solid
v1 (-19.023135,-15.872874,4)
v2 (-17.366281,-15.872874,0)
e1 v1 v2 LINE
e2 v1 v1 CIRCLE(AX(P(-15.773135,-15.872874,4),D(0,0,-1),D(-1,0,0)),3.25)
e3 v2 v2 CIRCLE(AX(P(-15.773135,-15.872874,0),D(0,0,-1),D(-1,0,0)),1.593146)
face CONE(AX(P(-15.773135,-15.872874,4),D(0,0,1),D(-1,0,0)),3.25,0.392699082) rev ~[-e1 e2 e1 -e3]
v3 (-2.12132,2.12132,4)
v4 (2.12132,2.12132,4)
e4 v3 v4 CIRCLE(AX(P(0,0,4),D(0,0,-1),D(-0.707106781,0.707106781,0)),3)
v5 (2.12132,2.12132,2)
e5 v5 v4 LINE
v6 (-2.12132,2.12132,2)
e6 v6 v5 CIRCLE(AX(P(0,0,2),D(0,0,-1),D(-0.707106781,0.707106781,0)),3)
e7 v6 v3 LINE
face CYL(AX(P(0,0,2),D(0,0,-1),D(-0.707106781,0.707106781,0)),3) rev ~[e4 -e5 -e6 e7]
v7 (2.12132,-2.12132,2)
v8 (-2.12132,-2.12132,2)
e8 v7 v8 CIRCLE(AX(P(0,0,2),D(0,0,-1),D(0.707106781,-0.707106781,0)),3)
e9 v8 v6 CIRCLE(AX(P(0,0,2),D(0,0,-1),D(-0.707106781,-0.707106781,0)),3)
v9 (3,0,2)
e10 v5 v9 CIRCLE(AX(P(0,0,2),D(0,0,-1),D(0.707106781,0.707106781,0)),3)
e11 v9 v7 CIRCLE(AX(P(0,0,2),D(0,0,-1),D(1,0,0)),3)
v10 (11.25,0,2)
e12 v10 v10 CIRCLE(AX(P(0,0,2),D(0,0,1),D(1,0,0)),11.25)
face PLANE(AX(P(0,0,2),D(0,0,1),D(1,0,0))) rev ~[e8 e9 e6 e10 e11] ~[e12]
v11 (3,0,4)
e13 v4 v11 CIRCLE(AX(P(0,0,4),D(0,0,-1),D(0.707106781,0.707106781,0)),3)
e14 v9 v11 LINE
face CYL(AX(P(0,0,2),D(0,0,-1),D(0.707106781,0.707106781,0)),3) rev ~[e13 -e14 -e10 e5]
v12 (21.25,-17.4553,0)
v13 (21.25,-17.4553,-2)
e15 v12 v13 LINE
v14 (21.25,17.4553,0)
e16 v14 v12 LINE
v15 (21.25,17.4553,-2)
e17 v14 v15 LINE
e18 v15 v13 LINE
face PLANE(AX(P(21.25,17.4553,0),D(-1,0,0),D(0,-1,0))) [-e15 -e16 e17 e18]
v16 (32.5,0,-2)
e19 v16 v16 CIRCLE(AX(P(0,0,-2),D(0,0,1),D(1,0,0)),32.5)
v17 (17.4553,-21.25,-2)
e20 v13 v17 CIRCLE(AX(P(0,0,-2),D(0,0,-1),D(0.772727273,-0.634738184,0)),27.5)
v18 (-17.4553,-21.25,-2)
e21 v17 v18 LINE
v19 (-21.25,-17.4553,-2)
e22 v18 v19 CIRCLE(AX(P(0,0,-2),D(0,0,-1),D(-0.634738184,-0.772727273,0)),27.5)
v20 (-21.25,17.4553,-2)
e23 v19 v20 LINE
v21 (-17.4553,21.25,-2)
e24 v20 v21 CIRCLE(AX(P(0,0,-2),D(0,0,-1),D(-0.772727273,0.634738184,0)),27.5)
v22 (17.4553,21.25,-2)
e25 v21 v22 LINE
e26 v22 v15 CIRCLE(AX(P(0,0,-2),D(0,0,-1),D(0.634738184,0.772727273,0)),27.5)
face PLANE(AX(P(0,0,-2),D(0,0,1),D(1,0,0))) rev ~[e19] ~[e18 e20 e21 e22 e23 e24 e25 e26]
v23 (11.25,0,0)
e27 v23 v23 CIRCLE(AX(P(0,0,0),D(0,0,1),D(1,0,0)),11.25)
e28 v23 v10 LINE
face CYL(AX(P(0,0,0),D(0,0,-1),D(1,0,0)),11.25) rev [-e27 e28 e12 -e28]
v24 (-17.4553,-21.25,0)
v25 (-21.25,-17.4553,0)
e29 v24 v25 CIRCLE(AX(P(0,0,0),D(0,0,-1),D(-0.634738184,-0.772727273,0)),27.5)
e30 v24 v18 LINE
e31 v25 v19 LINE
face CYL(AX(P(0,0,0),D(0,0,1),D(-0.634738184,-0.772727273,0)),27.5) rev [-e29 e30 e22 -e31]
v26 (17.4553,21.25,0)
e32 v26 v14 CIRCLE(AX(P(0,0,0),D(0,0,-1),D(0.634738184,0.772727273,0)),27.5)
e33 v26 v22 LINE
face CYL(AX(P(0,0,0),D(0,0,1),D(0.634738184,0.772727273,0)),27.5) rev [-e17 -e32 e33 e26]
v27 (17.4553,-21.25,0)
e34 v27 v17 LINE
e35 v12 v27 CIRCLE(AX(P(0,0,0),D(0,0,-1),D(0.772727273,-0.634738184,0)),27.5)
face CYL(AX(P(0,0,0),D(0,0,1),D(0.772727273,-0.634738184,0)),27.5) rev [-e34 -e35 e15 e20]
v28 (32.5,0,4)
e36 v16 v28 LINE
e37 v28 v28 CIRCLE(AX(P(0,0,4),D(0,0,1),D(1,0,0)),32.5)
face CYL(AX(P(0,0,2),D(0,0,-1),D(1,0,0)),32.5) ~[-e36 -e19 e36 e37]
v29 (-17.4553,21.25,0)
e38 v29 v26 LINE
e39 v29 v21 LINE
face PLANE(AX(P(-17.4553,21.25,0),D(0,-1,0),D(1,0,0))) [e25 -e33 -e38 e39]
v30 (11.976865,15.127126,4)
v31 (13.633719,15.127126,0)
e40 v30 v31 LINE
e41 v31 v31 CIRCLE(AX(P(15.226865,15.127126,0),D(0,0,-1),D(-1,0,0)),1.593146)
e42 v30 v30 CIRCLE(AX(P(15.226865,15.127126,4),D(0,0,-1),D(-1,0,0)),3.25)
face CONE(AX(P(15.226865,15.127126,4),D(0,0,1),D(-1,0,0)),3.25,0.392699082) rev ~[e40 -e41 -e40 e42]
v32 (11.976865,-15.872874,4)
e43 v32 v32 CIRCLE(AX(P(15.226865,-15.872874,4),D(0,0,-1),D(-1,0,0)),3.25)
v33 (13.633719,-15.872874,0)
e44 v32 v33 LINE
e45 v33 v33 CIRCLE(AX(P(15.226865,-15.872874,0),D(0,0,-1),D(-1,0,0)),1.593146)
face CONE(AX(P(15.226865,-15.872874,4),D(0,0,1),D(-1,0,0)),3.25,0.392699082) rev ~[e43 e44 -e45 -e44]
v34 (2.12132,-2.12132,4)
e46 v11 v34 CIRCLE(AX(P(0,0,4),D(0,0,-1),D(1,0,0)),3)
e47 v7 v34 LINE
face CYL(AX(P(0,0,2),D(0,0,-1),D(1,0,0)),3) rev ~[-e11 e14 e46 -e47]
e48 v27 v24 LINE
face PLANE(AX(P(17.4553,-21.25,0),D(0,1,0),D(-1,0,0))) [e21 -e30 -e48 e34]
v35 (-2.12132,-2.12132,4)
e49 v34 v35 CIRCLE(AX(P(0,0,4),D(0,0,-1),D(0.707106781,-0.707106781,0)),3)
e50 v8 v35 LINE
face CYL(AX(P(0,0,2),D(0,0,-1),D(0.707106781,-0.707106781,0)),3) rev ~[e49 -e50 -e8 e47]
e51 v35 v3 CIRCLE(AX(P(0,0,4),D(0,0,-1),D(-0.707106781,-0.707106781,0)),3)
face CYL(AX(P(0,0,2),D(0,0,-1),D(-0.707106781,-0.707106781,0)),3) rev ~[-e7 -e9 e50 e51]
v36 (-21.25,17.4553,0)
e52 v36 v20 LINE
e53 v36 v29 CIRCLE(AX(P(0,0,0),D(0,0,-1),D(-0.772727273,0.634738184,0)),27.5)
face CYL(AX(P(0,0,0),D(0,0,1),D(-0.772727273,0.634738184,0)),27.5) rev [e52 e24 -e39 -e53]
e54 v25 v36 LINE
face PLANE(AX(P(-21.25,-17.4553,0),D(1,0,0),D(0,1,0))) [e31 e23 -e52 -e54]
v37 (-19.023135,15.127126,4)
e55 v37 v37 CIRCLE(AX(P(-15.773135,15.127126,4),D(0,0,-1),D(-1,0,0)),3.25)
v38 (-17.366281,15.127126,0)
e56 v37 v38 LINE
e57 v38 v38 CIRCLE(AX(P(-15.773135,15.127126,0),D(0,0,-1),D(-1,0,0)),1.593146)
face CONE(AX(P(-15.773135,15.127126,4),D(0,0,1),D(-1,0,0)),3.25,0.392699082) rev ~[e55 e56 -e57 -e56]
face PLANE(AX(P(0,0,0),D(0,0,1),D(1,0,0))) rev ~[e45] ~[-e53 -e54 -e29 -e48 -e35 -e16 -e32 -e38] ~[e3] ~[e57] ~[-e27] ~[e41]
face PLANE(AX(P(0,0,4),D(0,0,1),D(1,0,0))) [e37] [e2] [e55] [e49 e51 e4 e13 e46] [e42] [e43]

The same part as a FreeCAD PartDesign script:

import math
import FreeCAD as App
import Part
import Sketcher

V = App.Vector
Q = App.Units.Quantity

doc = App.newDocument("Part")
body = doc.addObject("PartDesign::Body", "Body")

sketch1 = body.newObject("Sketcher::SketchObject", "Sketch")
sketch1.AttachmentSupport = (doc.getObject("XY_Plane"), [""])
sketch1.MapMode = "FlatFace"
sketch1.addGeometry(Part.Circle(V(0, 0, 0), V(0, 0, 1), 32.5), False)
sketch1.addGeometry(Part.Circle(V(0, 0, 0), V(0, 0, 1), 11.25), False)
sketch1.addConstraint(Sketcher.Constraint("Coincident", 0, 3, -1, 1))
sketch1.addConstraint(Sketcher.Constraint("Coincident", 1, 3, -1, 1))
sketch1.addConstraint(Sketcher.Constraint("Diameter", 0, Q("65 mm")))
sketch1.addConstraint(Sketcher.Constraint("Diameter", 1, Q("22.5 mm")))
pad1 = body.newObject("PartDesign::Pad", "Pad")
pad1.Profile = sketch1
pad1.Length = 2

sketch2 = body.newObject("Sketcher::SketchObject", "Sketch001")
sketch2.AttachmentSupport = (doc.getObject("XY_Plane"), [""])
sketch2.MapMode = "FlatFace"
sketch2.addGeometry(Part.Circle(V(0, 0, 0), V(0, 0, 1), 32.5), False)
sketch2.addGeometry(Part.LineSegment(V(-21.25, -17.4553, 0), V(-21.25, 17.4553, 0)), False)
sketch2.addGeometry(Part.ArcOfCircle(Part.Circle(V(0, 0, 0), V(0, 0, 1), 27.5), math.radians(129.400569), math.radians(140.599431)), False)
sketch2.addGeometry(Part.LineSegment(V(-17.4553, 21.25, 0), V(17.4553, 21.25, 0)), False)
sketch2.addGeometry(Part.ArcOfCircle(Part.Circle(V(0, 0, 0), V(0, 0, 1), 27.5), math.radians(39.400569), math.radians(50.599431)), False)
sketch2.addGeometry(Part.LineSegment(V(21.25, 17.4553, 0), V(21.25, -17.4553, 0)), False)
sketch2.addGeometry(Part.ArcOfCircle(Part.Circle(V(0, 0, 0), V(0, 0, 1), 27.5), math.radians(-50.599431), math.radians(-39.400569)), False)
sketch2.addGeometry(Part.LineSegment(V(17.4553, -21.25, 0), V(-17.4553, -21.25, 0)), False)
sketch2.addGeometry(Part.ArcOfCircle(Part.Circle(V(0, 0, 0), V(0, 0, 1), 27.5), math.radians(-140.599431), math.radians(-129.400569)), False)
sketch2.addConstraint(Sketcher.Constraint("Coincident", 1, 2, 2, 2))
sketch2.addConstraint(Sketcher.Constraint("Coincident", 2, 1, 3, 1))
sketch2.addConstraint(Sketcher.Constraint("Coincident", 3, 2, 4, 2))
sketch2.addConstraint(Sketcher.Constraint("Coincident", 4, 1, 5, 1))
sketch2.addConstraint(Sketcher.Constraint("Coincident", 5, 2, 6, 2))
sketch2.addConstraint(Sketcher.Constraint("Coincident", 6, 1, 7, 1))
sketch2.addConstraint(Sketcher.Constraint("Coincident", 7, 2, 8, 2))
sketch2.addConstraint(Sketcher.Constraint("Coincident", 8, 1, 1, 1))
sketch2.addConstraint(Sketcher.Constraint("Vertical", 1))
sketch2.addConstraint(Sketcher.Constraint("Horizontal", 3))
sketch2.addConstraint(Sketcher.Constraint("Vertical", 5))
sketch2.addConstraint(Sketcher.Constraint("Horizontal", 7))
sketch2.addConstraint(Sketcher.Constraint("Coincident", 0, 3, -1, 1))
sketch2.addConstraint(Sketcher.Constraint("Coincident", 2, 3, -1, 1))
sketch2.addConstraint(Sketcher.Constraint("Coincident", 4, 3, -1, 1))
sketch2.addConstraint(Sketcher.Constraint("Coincident", 6, 3, -1, 1))
sketch2.addConstraint(Sketcher.Constraint("Coincident", 8, 3, -1, 1))
sketch2.addConstraint(Sketcher.Constraint("Equal", 2, 4))
sketch2.addConstraint(Sketcher.Constraint("Equal", 4, 6))
sketch2.addConstraint(Sketcher.Constraint("Equal", 6, 8))
sketch2.addConstraint(Sketcher.Constraint("Horizontal", 1, 2, 4, 1))
sketch2.addConstraint(Sketcher.Constraint("Vertical", 3, 2, 6, 1))
sketch2.addConstraint(Sketcher.Constraint("Equal", 7, 1))
sketch2.addConstraint(Sketcher.Constraint("Diameter", 0, Q("65 mm")))
sketch2.addConstraint(Sketcher.Constraint("Radius", 2, Q("27.5 mm")))
sketch2.addConstraint(Sketcher.Constraint("DistanceX", 1, 2, -1, 1, Q("21.25 mm")))
pad2 = body.newObject("PartDesign::Pad", "Pad001")
pad2.Profile = sketch2
pad2.Length = 2
pad2.Reversed = True

sketch3 = body.newObject("Sketcher::SketchObject", "Sketch002")
sketch3.AttachmentSupport = (doc.getObject("XY_Plane"), [""])
sketch3.MapMode = "FlatFace"
sketch3.AttachmentOffset = App.Placement(V(0, 0, 2), App.Rotation())
sketch3.addGeometry(Part.Circle(V(0, 0, 0), V(0, 0, 1), 32.5), False)
sketch3.addGeometry(Part.ArcOfCircle(Part.Circle(V(0, 0, 0), V(0, 0, 1), 3), math.radians(45), math.radians(135)), False)
sketch3.addGeometry(Part.ArcOfCircle(Part.Circle(V(0, 0, 0), V(0, 0, 1), 3), math.radians(0), math.radians(45)), False)
sketch3.addGeometry(Part.ArcOfCircle(Part.Circle(V(0, 0, 0), V(0, 0, 1), 3), math.radians(-45), math.radians(0)), False)
sketch3.addGeometry(Part.ArcOfCircle(Part.Circle(V(0, 0, 0), V(0, 0, 1), 3), math.radians(-135), math.radians(-45)), False)
sketch3.addGeometry(Part.ArcOfCircle(Part.Circle(V(0, 0, 0), V(0, 0, 1), 3), math.radians(135), math.radians(225)), False)
sketch3.addConstraint(Sketcher.Constraint("Tangent", 1, 1, 2, 2))
sketch3.addConstraint(Sketcher.Constraint("Tangent", 2, 1, 3, 2))
sketch3.addConstraint(Sketcher.Constraint("Tangent", 3, 1, 4, 2))
sketch3.addConstraint(Sketcher.Constraint("Tangent", 4, 1, 5, 2))
sketch3.addConstraint(Sketcher.Constraint("Tangent", 5, 1, 1, 2))
sketch3.addConstraint(Sketcher.Constraint("Coincident", 0, 3, -1, 1))
sketch3.addConstraint(Sketcher.Constraint("Coincident", 1, 3, -1, 1))
sketch3.addConstraint(Sketcher.Constraint("Coincident", 3, 3, -1, 1))
sketch3.addConstraint(Sketcher.Constraint("PointOnObject", 2, 1, -1))
sketch3.addConstraint(Sketcher.Constraint("Horizontal", 3, 1, 4, 1))
sketch3.addConstraint(Sketcher.Constraint("Horizontal", 1, 1, 5, 1))
sketch3.addConstraint(Sketcher.Constraint("Vertical", 1, 1, 3, 1))
sketch3.addConstraint(Sketcher.Constraint("Diameter", 0, Q("65 mm")))
sketch3.addConstraint(Sketcher.Constraint("Radius", 1, Q("3 mm")))
sketch3.addConstraint(Sketcher.Constraint("DistanceX", -1, 1, 1, 1, Q("2.12132 mm")))
pad3 = body.newObject("PartDesign::Pad", "Pad002")
pad3.Profile = sketch3
pad3.Length = 2

sketch4 = body.newObject("Sketcher::SketchObject", "Sketch003")
sketch4.AttachmentSupport = (doc.getObject("XY_Plane"), [""])
sketch4.MapMode = "FlatFace"
sketch4.AttachmentOffset = App.Placement(V(0, 0, 4), App.Rotation())
sketch4.addGeometry(Part.Circle(V(-15.773135, 15.127126, 0), V(0, 0, 1), 1.5), False)
sketch4.addGeometry(Part.Circle(V(-15.773135, -15.872874, 0), V(0, 0, 1), 1.5), False)
sketch4.addGeometry(Part.Circle(V(15.226865, -15.872874, 0), V(0, 0, 1), 1.5), False)
sketch4.addGeometry(Part.Circle(V(15.226865, 15.127126, 0), V(0, 0, 1), 1.5), False)
sketch4.addConstraint(Sketcher.Constraint("Equal", 0, 1))
sketch4.addConstraint(Sketcher.Constraint("Equal", 1, 2))
sketch4.addConstraint(Sketcher.Constraint("Equal", 2, 3))
sketch4.addConstraint(Sketcher.Constraint("Horizontal", 1, 3, 2, 3))
sketch4.addConstraint(Sketcher.Constraint("Horizontal", 0, 3, 3, 3))
sketch4.addConstraint(Sketcher.Constraint("Vertical", 0, 3, 1, 3))
sketch4.addConstraint(Sketcher.Constraint("Vertical", 2, 3, 3, 3))
sketch4.addConstraint(Sketcher.Constraint("Diameter", 0, Q("3 mm")))
sketch4.addConstraint(Sketcher.Constraint("DistanceY", 1, 3, 0, 3, Q("31 mm")))
sketch4.addConstraint(Sketcher.Constraint("DistanceX", 1, 3, 2, 3, Q("31 mm")))
sketch4.addConstraint(Sketcher.Constraint("DistanceX", 0, 3, -1, 1, Q("15.773135 mm")))
sketch4.addConstraint(Sketcher.Constraint("DistanceY", -1, 1, 0, 3, Q("15.127126 mm")))
doc.recompute()
hole = body.newObject("PartDesign::Hole", "Hole")
hole.Profile = sketch4
hole.ThreadType = "None"
hole.Diameter = 3
hole.DepthType = "Dimension"
hole.Depth = 12
hole.DrillPoint = "Angled"
hole.DrillPointAngle = 118
hole.HoleCutType = "Countersink"
hole.HoleCutDiameter = 6.5
hole.HoleCutCountersinkAngle = 45

doc.recompute()
